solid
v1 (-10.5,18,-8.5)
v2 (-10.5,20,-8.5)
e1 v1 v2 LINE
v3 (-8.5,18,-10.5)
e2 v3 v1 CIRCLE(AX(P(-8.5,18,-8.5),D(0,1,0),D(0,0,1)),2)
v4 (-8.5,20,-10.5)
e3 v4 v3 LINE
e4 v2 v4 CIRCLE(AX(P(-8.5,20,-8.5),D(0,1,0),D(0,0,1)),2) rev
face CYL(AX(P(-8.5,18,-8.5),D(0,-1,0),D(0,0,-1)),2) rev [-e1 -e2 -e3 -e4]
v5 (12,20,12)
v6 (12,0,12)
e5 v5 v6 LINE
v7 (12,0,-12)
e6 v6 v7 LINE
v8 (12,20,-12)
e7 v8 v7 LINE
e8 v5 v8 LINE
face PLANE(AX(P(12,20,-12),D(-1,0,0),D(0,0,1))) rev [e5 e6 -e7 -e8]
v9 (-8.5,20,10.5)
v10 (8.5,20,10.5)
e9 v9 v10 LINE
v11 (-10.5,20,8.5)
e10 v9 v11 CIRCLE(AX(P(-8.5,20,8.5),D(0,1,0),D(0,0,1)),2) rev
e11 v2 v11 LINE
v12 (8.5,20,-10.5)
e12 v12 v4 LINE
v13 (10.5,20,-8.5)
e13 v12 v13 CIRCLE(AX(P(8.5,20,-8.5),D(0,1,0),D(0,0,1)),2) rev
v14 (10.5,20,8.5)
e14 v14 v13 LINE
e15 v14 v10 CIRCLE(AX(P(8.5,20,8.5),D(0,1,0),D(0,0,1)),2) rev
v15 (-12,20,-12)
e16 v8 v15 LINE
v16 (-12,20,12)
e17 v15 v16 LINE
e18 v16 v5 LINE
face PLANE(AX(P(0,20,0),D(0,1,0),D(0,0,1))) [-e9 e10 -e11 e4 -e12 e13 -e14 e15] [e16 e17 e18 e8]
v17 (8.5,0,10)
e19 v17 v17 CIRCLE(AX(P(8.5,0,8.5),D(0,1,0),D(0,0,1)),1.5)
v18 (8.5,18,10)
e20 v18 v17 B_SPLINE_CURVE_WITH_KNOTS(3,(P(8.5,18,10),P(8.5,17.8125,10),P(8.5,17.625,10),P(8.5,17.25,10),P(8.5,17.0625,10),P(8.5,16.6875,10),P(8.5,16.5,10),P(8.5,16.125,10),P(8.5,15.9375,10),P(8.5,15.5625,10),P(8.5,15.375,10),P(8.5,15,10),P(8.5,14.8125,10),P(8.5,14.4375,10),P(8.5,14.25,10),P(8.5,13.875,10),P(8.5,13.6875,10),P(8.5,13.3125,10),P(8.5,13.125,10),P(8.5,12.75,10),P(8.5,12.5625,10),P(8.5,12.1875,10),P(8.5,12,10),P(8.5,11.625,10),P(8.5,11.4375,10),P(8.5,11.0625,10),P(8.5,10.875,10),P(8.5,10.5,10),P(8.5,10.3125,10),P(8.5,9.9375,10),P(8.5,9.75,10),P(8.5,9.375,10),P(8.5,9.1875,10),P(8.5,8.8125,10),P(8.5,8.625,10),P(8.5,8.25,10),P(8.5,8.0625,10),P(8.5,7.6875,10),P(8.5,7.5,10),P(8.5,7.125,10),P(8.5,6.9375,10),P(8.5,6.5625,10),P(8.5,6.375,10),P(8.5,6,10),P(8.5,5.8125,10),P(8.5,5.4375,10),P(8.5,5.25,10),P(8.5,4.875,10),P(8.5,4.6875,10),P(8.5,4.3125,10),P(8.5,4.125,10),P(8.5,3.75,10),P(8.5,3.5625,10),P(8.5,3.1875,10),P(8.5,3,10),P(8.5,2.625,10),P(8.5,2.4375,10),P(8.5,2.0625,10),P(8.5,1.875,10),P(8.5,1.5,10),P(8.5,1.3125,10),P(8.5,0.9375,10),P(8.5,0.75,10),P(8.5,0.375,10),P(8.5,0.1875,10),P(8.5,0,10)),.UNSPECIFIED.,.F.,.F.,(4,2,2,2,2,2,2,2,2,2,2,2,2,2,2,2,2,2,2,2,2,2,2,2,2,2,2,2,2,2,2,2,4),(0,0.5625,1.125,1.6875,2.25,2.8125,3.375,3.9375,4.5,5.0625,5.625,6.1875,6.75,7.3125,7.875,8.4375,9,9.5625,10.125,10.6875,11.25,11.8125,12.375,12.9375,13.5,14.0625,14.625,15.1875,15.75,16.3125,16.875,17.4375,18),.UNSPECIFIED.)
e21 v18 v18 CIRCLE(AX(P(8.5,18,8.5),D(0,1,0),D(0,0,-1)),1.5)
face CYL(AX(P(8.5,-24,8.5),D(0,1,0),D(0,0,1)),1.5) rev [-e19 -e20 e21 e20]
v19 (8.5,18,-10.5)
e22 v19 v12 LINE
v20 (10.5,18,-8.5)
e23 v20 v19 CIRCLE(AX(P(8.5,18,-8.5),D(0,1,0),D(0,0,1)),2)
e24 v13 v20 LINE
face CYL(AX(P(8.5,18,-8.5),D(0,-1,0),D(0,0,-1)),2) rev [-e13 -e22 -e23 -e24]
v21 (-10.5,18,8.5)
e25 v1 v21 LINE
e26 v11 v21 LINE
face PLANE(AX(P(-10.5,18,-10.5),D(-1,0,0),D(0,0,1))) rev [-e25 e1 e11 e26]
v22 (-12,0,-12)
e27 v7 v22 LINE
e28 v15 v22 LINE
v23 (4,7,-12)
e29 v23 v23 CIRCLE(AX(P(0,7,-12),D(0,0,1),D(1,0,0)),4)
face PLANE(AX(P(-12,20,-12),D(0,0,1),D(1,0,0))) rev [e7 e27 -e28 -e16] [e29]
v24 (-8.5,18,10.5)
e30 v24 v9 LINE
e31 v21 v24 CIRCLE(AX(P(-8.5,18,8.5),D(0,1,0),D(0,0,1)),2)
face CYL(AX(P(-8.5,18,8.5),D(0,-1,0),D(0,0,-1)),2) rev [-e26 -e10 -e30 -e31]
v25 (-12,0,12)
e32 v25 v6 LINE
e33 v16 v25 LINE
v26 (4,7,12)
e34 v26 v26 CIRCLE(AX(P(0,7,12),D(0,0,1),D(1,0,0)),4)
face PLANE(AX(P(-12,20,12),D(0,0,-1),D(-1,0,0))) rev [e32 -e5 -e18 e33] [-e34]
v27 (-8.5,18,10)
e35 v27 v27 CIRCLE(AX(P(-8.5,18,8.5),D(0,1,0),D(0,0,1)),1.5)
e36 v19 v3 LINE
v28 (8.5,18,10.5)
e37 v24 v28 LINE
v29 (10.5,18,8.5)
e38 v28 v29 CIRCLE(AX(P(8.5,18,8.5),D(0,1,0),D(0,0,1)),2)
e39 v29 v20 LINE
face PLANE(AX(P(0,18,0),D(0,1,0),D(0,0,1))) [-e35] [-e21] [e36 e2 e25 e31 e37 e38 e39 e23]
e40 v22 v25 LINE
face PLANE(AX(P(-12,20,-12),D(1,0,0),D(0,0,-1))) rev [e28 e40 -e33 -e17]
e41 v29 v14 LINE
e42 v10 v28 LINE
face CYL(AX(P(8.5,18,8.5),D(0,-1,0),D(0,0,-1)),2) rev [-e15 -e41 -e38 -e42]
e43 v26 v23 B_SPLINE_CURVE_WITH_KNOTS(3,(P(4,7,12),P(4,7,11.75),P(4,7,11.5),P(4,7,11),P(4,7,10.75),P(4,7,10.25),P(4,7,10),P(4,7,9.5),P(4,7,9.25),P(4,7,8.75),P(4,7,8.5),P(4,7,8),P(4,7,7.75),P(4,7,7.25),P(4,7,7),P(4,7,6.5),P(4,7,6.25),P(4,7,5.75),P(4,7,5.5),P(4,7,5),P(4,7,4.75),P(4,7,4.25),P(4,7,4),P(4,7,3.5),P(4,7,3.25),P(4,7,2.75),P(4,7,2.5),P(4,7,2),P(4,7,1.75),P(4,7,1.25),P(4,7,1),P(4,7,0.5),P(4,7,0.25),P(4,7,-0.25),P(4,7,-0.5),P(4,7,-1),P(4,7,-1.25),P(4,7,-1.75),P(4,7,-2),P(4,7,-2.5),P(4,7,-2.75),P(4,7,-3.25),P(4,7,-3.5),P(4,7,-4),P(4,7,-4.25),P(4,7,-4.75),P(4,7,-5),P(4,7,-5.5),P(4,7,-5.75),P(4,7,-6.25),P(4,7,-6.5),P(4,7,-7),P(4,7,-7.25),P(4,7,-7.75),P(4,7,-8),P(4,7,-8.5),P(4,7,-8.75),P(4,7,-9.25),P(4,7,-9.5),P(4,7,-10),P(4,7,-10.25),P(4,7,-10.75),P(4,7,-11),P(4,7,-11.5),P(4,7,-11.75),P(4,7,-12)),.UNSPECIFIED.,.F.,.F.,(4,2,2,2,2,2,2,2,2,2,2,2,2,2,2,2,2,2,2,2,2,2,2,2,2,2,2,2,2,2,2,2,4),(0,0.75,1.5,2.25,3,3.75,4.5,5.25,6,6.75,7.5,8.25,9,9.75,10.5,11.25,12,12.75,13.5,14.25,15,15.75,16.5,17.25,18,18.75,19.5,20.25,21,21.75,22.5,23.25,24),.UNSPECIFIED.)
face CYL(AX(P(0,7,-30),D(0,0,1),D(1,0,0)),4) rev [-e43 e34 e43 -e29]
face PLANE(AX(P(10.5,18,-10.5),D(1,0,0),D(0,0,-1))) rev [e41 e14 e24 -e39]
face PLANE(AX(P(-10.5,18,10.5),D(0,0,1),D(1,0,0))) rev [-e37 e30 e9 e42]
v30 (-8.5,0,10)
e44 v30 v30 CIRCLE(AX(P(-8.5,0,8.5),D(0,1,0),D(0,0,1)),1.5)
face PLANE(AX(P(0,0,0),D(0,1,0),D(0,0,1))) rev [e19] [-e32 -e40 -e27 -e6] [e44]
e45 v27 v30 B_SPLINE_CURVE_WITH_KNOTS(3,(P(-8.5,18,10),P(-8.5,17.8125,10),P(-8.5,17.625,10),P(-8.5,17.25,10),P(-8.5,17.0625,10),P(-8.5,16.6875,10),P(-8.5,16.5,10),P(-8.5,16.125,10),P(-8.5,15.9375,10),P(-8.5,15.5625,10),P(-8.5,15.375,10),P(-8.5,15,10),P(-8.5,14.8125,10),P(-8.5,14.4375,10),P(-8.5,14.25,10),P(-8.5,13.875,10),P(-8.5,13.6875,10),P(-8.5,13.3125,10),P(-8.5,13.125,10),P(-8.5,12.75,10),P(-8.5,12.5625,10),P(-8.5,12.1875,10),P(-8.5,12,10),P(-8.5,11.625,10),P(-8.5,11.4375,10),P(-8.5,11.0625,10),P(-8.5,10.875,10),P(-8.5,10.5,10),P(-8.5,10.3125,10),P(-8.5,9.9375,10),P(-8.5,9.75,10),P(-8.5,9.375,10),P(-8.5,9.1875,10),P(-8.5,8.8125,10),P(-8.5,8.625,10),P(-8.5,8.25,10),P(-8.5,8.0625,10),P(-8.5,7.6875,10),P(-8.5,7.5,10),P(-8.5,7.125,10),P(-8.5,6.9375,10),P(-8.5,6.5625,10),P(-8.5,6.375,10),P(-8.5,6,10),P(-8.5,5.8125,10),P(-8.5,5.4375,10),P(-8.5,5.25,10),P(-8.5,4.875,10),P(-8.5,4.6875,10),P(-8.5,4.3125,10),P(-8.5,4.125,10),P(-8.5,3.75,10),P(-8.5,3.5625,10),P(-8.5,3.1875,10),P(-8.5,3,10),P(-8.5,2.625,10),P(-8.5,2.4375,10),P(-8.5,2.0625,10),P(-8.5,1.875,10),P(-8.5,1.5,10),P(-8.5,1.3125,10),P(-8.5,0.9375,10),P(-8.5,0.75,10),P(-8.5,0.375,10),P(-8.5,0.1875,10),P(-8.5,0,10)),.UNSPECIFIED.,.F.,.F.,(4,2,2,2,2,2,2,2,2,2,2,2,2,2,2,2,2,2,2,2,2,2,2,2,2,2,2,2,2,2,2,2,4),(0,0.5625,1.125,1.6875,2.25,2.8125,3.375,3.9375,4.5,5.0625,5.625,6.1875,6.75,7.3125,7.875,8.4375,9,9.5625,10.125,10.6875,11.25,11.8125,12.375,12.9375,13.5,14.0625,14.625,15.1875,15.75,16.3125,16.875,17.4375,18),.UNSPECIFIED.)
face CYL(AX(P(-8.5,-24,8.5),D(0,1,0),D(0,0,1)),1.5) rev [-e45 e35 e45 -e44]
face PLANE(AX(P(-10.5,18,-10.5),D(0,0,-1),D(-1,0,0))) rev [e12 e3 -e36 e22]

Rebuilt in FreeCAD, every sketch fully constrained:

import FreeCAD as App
import Part
import Sketcher
from FreeCAD import Vector
Q = App.Units.Quantity


def edges_at(feature, points):
    """Names of the edges that pass closest to the given points."""
    edges = feature.Shape.Edges
    near = lambda p: min(range(len(edges)), key=lambda i: edges[i].distToShape(Part.Vertex(*p))[0])
    return sorted({f"Edge{near(p) + 1}" for p in points})


def add_polygon(sketch, points):
    """Adds a closed chain of lines whose ends are joined by coincident constraints."""
    first, n = sketch.GeometryCount, len(points)
    for a, b in zip(points, points[1:] + points[:1]):
        sketch.addGeometry(Part.LineSegment(App.Vector(*a, 0), App.Vector(*b, 0)), False)
    for i in range(n):
        sketch.addConstraint(Sketcher.Constraint("Coincident", first + i, 2, first + (i + 1) % n, 1))

doc = App.newDocument("Part")
body = doc.addObject("PartDesign::Body", "Body")

# Sketch on XZ plane
sketch1 = body.newObject("Sketcher::SketchObject", "Sketch")
sketch1.AttachmentSupport = (doc.getObject("XZ_Plane"), [""])
sketch1.MapMode = "FlatFace"
add_polygon(sketch1, [(-12, -12), (-12, 12), (12, 12), (12, -12)])  # lines 0-3
sketch1.addConstraint(Sketcher.Constraint("Vertical", 0))
sketch1.addConstraint(Sketcher.Constraint("Horizontal", 1))
sketch1.addConstraint(Sketcher.Constraint("Vertical", 2))
sketch1.addConstraint(Sketcher.Constraint("Horizontal", 3))
sketch1.addConstraint(Sketcher.Constraint("Symmetric", 0, 2, 2, 2, -1, 1))
sketch1.addConstraint(Sketcher.Constraint("Equal", 3, 0))
sketch1.addConstraint(Sketcher.Constraint("DistanceX", 1, 1, 1, 2, Q("24 mm")))
pad1 = body.newObject("PartDesign::Pad", "Pad")
pad1.Profile = sketch1
pad1.Length = 20
pad1.Reversed = True

# Sketch on XZ plane
sketch2 = body.newObject("Sketcher::SketchObject", "Sketch001")
sketch2.AttachmentSupport = (doc.getObject("XZ_Plane"), [""])
sketch2.MapMode = "FlatFace"
sketch2.AttachmentOffset = App.Placement(Vector(0, 0, -20), App.Rotation())
add_polygon(sketch2, [(-10, -10), (-10, 10), (10, 10), (10, -10)])  # lines 0-3
sketch2.addConstraint(Sketcher.Constraint("Vertical", 0))
sketch2.addConstraint(Sketcher.Constraint("Horizontal", 1))
sketch2.addConstraint(Sketcher.Constraint("Vertical", 2))
sketch2.addConstraint(Sketcher.Constraint("Horizontal", 3))
sketch2.addConstraint(Sketcher.Constraint("Symmetric", 0, 2, 2, 2, -1, 1))
sketch2.addConstraint(Sketcher.Constraint("Equal", 3, 0))
sketch2.addConstraint(Sketcher.Constraint("DistanceX", 1, 1, 1, 2, Q("21 mm")))
pocket1 = body.newObject("PartDesign::Pocket", "Pocket")
pocket1.Profile = sketch2
pocket1.Length = 2
pocket1.Reversed = True
doc.recompute()

fillet = body.newObject("PartDesign::Fillet", "Fillet")
fillet.Base = (pocket1, edges_at(pocket1, [
    (10.5, 19, -10.5),
    (10.5, 19, 10.5),
    (-10.5, 19, 10.5),
    (-10.5, 19, -10.5),
]))
fillet.Radius = 2

# Sketch on XY plane
sketch3 = body.newObject("Sketcher::SketchObject", "Sketch002")
sketch3.AttachmentSupport = (doc.getObject("XY_Plane"), [""])
sketch3.MapMode = "FlatFace"
sketch3.AttachmentOffset = App.Placement(Vector(0, 0, 12), App.Rotation())
sketch3.addGeometry(Part.Circle(Vector(0, 7, 0), Vector(0, 0, 1), 4), False)
sketch3.addConstraint(Sketcher.Constraint("PointOnObject", 0, 3, -2))
sketch3.addConstraint(Sketcher.Constraint("Diameter", 0, Q("8 mm")))
sketch3.addConstraint(Sketcher.Constraint("DistanceY", -1, 1, 0, 3, Q("7 mm")))
pocket2 = body.newObject("PartDesign::Pocket", "Pocket001")
pocket2.Profile = sketch3
pocket2.Length = 42

# Sketch on XZ plane
sketch4 = body.newObject("Sketcher::SketchObject", "Sketch003")
sketch4.AttachmentSupport = (doc.getObject("XZ_Plane"), [""])
sketch4.MapMode = "FlatFace"
sketch4.AttachmentOffset = App.Placement(Vector(0, 0, -18), App.Rotation())
sketch4.addGeometry(Part.Circle(Vector(-8.5, 8.5, 0), Vector(0, 0, 1), 1.5), False)
sketch4.addGeometry(Part.Circle(Vector(8.5, 8.5, 0), Vector(0, 0, 1), 1.5), False)
sketch4.addConstraint(Sketcher.Constraint("Equal", 0, 1))
sketch4.addConstraint(Sketcher.Constraint("Symmetric", 0, 3, 1, 3, -2))
sketch4.addConstraint(Sketcher.Constraint("Diameter", 0, Q("3 mm")))
sketch4.addConstraint(Sketcher.Constraint("DistanceX", 0, 3, 1, 3, Q("17 mm")))
sketch4.addConstraint(Sketcher.Constraint("DistanceY", -1, 1, 0, 3, Q("8.5 mm")))
pocket3 = body.newObject("PartDesign::Pocket", "Pocket002")
pocket3.Profile = sketch4
pocket3.Length = 42
pocket3.Reversed = True

doc.recompute()
